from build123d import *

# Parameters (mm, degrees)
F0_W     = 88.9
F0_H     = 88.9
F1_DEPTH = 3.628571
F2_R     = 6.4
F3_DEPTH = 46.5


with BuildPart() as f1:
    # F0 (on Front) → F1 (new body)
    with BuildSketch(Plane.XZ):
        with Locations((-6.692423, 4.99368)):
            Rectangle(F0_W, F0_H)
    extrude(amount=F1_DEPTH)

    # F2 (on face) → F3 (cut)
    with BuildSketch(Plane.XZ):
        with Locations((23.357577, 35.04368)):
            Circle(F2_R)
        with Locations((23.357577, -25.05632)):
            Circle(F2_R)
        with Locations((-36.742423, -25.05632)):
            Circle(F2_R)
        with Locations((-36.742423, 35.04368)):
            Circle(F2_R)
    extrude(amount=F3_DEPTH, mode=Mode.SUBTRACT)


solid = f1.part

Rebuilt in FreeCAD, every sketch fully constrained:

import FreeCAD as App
import Part
import Sketcher
Q = App.Units.Quantity


def add_polygon(sketch, points):
    """Adds a closed chain of lines whose ends are joined by coincident constraints."""
    first, n = sketch.GeometryCount, len(points)
    for a, b in zip(points, points[1:] + points[:1]):
        sketch.addGeometry(Part.LineSegment(App.Vector(*a, 0), App.Vector(*b, 0)), False)
    for i in range(n):
        sketch.addConstraint(Sketcher.Constraint("Coincident", first + i, 2, first + (i + 1) % n, 1))

doc = App.newDocument("Part")
body = doc.addObject("PartDesign::Body", "Body")

# Sketch on XZ plane
sketch1 = body.newObject("Sketcher::SketchObject", "Sketch")
sketch1.AttachmentSupport = (doc.getObject("XZ_Plane"), [""])
sketch1.MapMode = "FlatFace"
add_polygon(sketch1, [(-51, 49), (-51, -39), (38, -39), (38, 49)])  # lines 0-3
sketch1.addConstraint(Sketcher.Constraint("Vertical", 0))
sketch1.addConstraint(Sketcher.Constraint("Horizontal", 1))
sketch1.addConstraint(Sketcher.Constraint("Vertical", 2))
sketch1.addConstraint(Sketcher.Constraint("Horizontal", 3))
sketch1.addConstraint(Sketcher.Constraint("Equal", 3, 0))
sketch1.addConstraint(Sketcher.Constraint("DistanceX", 1, 1, 1, 2, Q("88.9 mm")))
sketch1.addConstraint(Sketcher.Constraint("DistanceY", 0, 2, -1, 1, Q("39.45632 mm")))
sketch1.addConstraint(Sketcher.Constraint("DistanceX", 0, 2, -1, 1, Q("51.142423 mm")))
pad1 = body.newObject("PartDesign::Pad", "Pad")
pad1.Profile = sketch1
pad1.Length = 3.628571

# Sketch on XZ plane
sketch2 = body.newObject("Sketcher::SketchObject", "Sketch001")
sketch2.AttachmentSupport = (doc.getObject("XZ_Plane"), [""])
sketch2.MapMode = "FlatFace"
sketch2.addGeometry(Part.Circle(App.Vector(23, 35, 0), App.Vector(0, 0, 1), 6), False)
sketch2.addGeometry(Part.Circle(App.Vector(23, -25, 0), App.Vector(0, 0, 1), 6), False)
sketch2.addGeometry(Part.Circle(App.Vector(-37, -25, 0), App.Vector(0, 0, 1), 6), False)
sketch2.addGeometry(Part.Circle(App.Vector(-37, 35, 0), App.Vector(0, 0, 1), 6), False)
sketch2.addConstraint(Sketcher.Constraint("Equal", 0, 1))
sketch2.addConstraint(Sketcher.Constraint("Equal", 1, 2))
sketch2.addConstraint(Sketcher.Constraint("Equal", 2, 3))
sketch2.addConstraint(Sketcher.Constraint("Horizontal", 1, 3, 2, 3))
sketch2.addConstraint(Sketcher.Constraint("Horizontal", 0, 3, 3, 3))
sketch2.addConstraint(Sketcher.Constraint("Vertical", 0, 3, 1, 3))
sketch2.addConstraint(Sketcher.Constraint("Vertical", 2, 3, 3, 3))
sketch2.addConstraint(Sketcher.Constraint("Diameter", 0, Q("12.8 mm")))
sketch2.addConstraint(Sketcher.Constraint("DistanceY", 1, 3, 0, 3, Q("60.1 mm")))
sketch2.addConstraint(Sketcher.Constraint("DistanceX", 2, 3, 1, 3, Q("60.1 mm")))
sketch2.addConstraint(Sketcher.Constraint("DistanceY", -1, 1, 0, 3, Q("35.04368 mm")))
sketch2.addConstraint(Sketcher.Constraint("DistanceX", -1, 1, 0, 3, Q("23.357577 mm")))
pocket1 = body.newObject("PartDesign::Pocket", "Pocket")
pocket1.Profile = sketch2
pocket1.Length = 46.5
pocket1.Reversed = True

doc.recompute()
